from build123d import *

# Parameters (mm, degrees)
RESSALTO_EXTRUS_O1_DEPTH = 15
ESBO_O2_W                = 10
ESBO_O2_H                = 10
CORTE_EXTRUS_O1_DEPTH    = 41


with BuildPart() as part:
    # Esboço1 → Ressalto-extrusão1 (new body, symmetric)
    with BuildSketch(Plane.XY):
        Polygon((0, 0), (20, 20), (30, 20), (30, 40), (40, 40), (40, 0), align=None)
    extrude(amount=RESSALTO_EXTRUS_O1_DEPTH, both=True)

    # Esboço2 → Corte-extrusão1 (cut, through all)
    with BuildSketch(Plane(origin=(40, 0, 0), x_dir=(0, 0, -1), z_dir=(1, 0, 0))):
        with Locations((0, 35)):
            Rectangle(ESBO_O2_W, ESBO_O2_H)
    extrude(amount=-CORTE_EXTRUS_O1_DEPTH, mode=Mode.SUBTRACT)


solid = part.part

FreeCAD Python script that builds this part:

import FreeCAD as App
import Part
import Sketcher


def add_polygon(sketch, points):
    """Adds a closed chain of lines whose ends are joined by coincident constraints."""
    first, n = sketch.GeometryCount, len(points)
    for a, b in zip(points, points[1:] + points[:1]):
        sketch.addGeometry(Part.LineSegment(App.Vector(*a, 0), App.Vector(*b, 0)), False)
    for i in range(n):
        sketch.addConstraint(Sketcher.Constraint("Coincident", first + i, 2, first + (i + 1) % n, 1))

doc = App.newDocument("Part")
body = doc.addObject("PartDesign::Body", "Body")

# Sketch on XY plane
sketch1 = body.newObject("Sketcher::SketchObject", "Sketch")
sketch1.AttachmentSupport = (doc.getObject("XY_Plane"), [""])
sketch1.MapMode = "FlatFace"
add_polygon(sketch1, [(20, 20), (0, 0), (40, 0), (40, 40), (30, 40), (30, 20)])  # lines 0-5
sketch1.addConstraint(Sketcher.Constraint("Horizontal", 1))
sketch1.addConstraint(Sketcher.Constraint("Vertical", 2))
sketch1.addConstraint(Sketcher.Constraint("Horizontal", 3))
sketch1.addConstraint(Sketcher.Constraint("Vertical", 4))
sketch1.addConstraint(Sketcher.Constraint("Horizontal", 5))
sketch1.addConstraint(Sketcher.Constraint("Coincident", 0, 2, -1, 1))
sketch1.addConstraint(Sketcher.Constraint("Equal", 3, 5))
sketch1.addConstraint(Sketcher.Constraint("Equal", 1, 2))
sketch1.addConstraint(Sketcher.Constraint("DistanceX", 1, 1, 1, 2, 40.0))
sketch1.addConstraint(Sketcher.Constraint("DistanceX", 3, 2, 3, 1, 10.0))
sketch1.addConstraint(Sketcher.Constraint("DistanceY", 4, 2, 4, 1, 20.0))
pad1 = body.newObject("PartDesign::Pad", "Pad")
pad1.Profile = sketch1
pad1.Length = 30
pad1.Midplane = True

# Sketch on YZ plane
sketch2 = body.newObject("Sketcher::SketchObject", "Sketch001")
sketch2.AttachmentSupport = (doc.getObject("YZ_Plane"), [""])
sketch2.MapMode = "FlatFace"
sketch2.AttachmentOffset = App.Placement(App.Vector(0, 0, 40), App.Rotation())
add_polygon(sketch2, [(40, 5), (30, 5), (30, -5), (40, -5)])  # lines 0-3
sketch2.addConstraint(Sketcher.Constraint("Horizontal", 0))
sketch2.addConstraint(Sketcher.Constraint("Vertical", 1))
sketch2.addConstraint(Sketcher.Constraint("Horizontal", 2))
sketch2.addConstraint(Sketcher.Constraint("Vertical", 3))
sketch2.addConstraint(Sketcher.Constraint("Equal", 2, 1))
sketch2.addConstraint(Sketcher.Constraint("DistanceX", 0, 2, 0, 1, 10.0))
sketch2.addConstraint(Sketcher.Constraint("DistanceX", -1, 1, 0, 2, 30.0))
sketch2.addConstraint(Sketcher.Constraint("DistanceY", -1, 1, 0, 2, 5.0))
pocket1 = body.newObject("PartDesign::Pocket", "Pocket")
pocket1.Profile = sketch2
pocket1.Type = "ThroughAll"

doc.recompute()
